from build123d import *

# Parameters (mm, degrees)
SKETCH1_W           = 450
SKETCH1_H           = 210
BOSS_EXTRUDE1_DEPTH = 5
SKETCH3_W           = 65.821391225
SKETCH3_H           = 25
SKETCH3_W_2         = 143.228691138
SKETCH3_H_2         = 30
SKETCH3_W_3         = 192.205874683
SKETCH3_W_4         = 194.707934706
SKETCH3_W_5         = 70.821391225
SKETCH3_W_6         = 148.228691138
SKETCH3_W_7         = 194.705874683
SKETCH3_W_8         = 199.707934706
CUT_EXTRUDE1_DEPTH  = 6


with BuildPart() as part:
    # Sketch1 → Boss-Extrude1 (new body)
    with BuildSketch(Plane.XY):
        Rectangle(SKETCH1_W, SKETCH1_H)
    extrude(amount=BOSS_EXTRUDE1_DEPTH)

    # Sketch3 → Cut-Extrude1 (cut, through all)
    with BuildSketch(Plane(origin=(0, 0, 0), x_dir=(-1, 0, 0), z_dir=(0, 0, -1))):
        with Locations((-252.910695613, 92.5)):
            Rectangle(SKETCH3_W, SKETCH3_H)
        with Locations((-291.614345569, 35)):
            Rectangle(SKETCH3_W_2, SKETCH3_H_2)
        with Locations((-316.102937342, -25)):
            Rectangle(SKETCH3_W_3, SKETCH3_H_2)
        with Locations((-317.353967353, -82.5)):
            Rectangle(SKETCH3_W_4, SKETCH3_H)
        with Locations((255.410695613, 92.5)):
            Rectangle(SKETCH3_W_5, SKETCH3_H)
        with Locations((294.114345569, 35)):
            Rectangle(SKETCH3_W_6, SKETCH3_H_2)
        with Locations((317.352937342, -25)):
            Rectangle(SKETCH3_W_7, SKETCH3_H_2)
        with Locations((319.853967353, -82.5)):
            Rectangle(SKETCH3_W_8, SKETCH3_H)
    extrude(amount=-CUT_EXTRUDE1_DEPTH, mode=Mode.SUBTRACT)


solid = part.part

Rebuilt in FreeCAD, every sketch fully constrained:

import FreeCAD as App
import Part
import Sketcher

V = App.Vector
Q = App.Units.Quantity


def add_polygon(sketch, points):
    """Adds a closed chain of lines whose ends are joined by coincident constraints."""
    first, n = sketch.GeometryCount, len(points)
    for a, b in zip(points, points[1:] + points[:1]):
        sketch.addGeometry(Part.LineSegment(App.Vector(*a, 0), App.Vector(*b, 0)), False)
    for i in range(n):
        sketch.addConstraint(Sketcher.Constraint("Coincident", first + i, 2, first + (i + 1) % n, 1))

doc = App.newDocument("Part")
params = doc.addObject("Spreadsheet::Sheet", "Params")
for row, (alias, value) in enumerate([
    ("sketch1_width", "450 mm"),
    ("sketch1_height", "210 mm"),
    ("pad1_length", "5 mm"),
    ("sketch2_height", "25 mm"),
    ("sketch2_height2", "30 mm"),
], start=1):
    params.set(f"A{row}", alias)
    params.set(f"B{row}", "=" + value)
    params.setAlias(f"B{row}", alias)

body = doc.addObject("PartDesign::Body", "Body")

# Sketch on XY plane
sketch1 = body.newObject("Sketcher::SketchObject", "Sketch")
sketch1.AttachmentSupport = (doc.getObject("XY_Plane"), [""])
sketch1.MapMode = "FlatFace"
add_polygon(sketch1, [(-225, 105), (-225, -105), (225, -105), (225, 105)])  # lines 0-3
sketch1.addConstraint(Sketcher.Constraint("Vertical", 0))
sketch1.addConstraint(Sketcher.Constraint("Horizontal", 1))
sketch1.addConstraint(Sketcher.Constraint("Vertical", 2))
sketch1.addConstraint(Sketcher.Constraint("Horizontal", 3))
sketch1.addConstraint(Sketcher.Constraint("Symmetric", 0, 2, 2, 2, -1, 1))
sketch1.addConstraint(Sketcher.Constraint("DistanceX", 1, 1, 1, 2, Q("450 mm")))
sketch1.addConstraint(Sketcher.Constraint("DistanceY", 0, 2, 0, 1, Q("210 mm")))
sketch1.setExpression("Constraints[9]", "Params.sketch1_width")
sketch1.setExpression("Constraints[10]", "Params.sketch1_height")
pad1 = body.newObject("PartDesign::Pad", "Pad")
pad1.Profile = sketch1
pad1.setExpression("Length", "Params.pad1_length")

# Sketch on XY plane
sketch2 = body.newObject("Sketcher::SketchObject", "Sketch001")
sketch2.AttachmentSupport = (doc.getObject("XY_Plane"), [""])
sketch2.MapMode = "FlatFace"
add_polygon(sketch2, [(286, 105), (286, 80), (220, 80), (220, 105)])  # lines 0-3
add_polygon(sketch2, [(363, 50), (363, 20), (220, 20), (220, 50)])  # lines 4-7
add_polygon(sketch2, [(412, -10), (412, -40), (220, -40), (220, -10)])  # lines 8-11
add_polygon(sketch2, [(415, -70), (415, -95), (220, -95), (220, -70)])  # lines 12-15
add_polygon(sketch2, [(-220, 105), (-220, 80), (-291, 80), (-291, 105)])  # lines 16-19
add_polygon(sketch2, [(-220, 50), (-220, 20), (-368, 20), (-368, 50)])  # lines 20-23
add_polygon(sketch2, [(-220, -10), (-220, -40), (-415, -40), (-415, -10)])  # lines 24-27
add_polygon(sketch2, [(-220, -70), (-220, -95), (-420, -95), (-420, -70)])  # lines 28-31
sketch2.addConstraint(Sketcher.Constraint("Vertical", 0))
sketch2.addConstraint(Sketcher.Constraint("Horizontal", 1))
sketch2.addConstraint(Sketcher.Constraint("Vertical", 2))
sketch2.addConstraint(Sketcher.Constraint("Horizontal", 3))
sketch2.addConstraint(Sketcher.Constraint("Vertical", 4))
sketch2.addConstraint(Sketcher.Constraint("Horizontal", 5))
sketch2.addConstraint(Sketcher.Constraint("Vertical", 6))
sketch2.addConstraint(Sketcher.Constraint("Horizontal", 7))
sketch2.addConstraint(Sketcher.Constraint("Vertical", 8))
sketch2.addConstraint(Sketcher.Constraint("Horizontal", 9))
sketch2.addConstraint(Sketcher.Constraint("Vertical", 10))
sketch2.addConstraint(Sketcher.Constraint("Horizontal", 11))
sketch2.addConstraint(Sketcher.Constraint("Vertical", 12))
sketch2.addConstraint(Sketcher.Constraint("Horizontal", 13))
sketch2.addConstraint(Sketcher.Constraint("Vertical", 14))
sketch2.addConstraint(Sketcher.Constraint("Horizontal", 15))
sketch2.addConstraint(Sketcher.Constraint("Vertical", 16))
sketch2.addConstraint(Sketcher.Constraint("Horizontal", 17))
sketch2.addConstraint(Sketcher.Constraint("Vertical", 18))
sketch2.addConstraint(Sketcher.Constraint("Horizontal", 19))
sketch2.addConstraint(Sketcher.Constraint("Vertical", 20))
sketch2.addConstraint(Sketcher.Constraint("Horizontal", 21))
sketch2.addConstraint(Sketcher.Constraint("Vertical", 22))
sketch2.addConstraint(Sketcher.Constraint("Horizontal", 23))
sketch2.addConstraint(Sketcher.Constraint("Vertical", 24))
sketch2.addConstraint(Sketcher.Constraint("Horizontal", 25))
sketch2.addConstraint(Sketcher.Constraint("Vertical", 26))
sketch2.addConstraint(Sketcher.Constraint("Horizontal", 27))
sketch2.addConstraint(Sketcher.Constraint("Vertical", 28))
sketch2.addConstraint(Sketcher.Constraint("Horizontal", 29))
sketch2.addConstraint(Sketcher.Constraint("Vertical", 30))
sketch2.addConstraint(Sketcher.Constraint("Horizontal", 31))
sketch2.addConstraint(Sketcher.Constraint("Symmetric", 1, 2, 16, 2, -2))
sketch2.addConstraint(Sketcher.Constraint("Symmetric", 5, 2, 20, 2, -2))
sketch2.addConstraint(Sketcher.Constraint("Symmetric", 9, 2, 24, 2, -2))
sketch2.addConstraint(Sketcher.Constraint("Symmetric", 13, 2, 28, 2, -2))
sketch2.addConstraint(Sketcher.Constraint("Horizontal", 3, 2, 18, 2))
sketch2.addConstraint(Sketcher.Constraint("Horizontal", 7, 2, 22, 2))
sketch2.addConstraint(Sketcher.Constraint("Horizontal", 11, 2, 26, 2))
sketch2.addConstraint(Sketcher.Constraint("Horizontal", 15, 2, 30, 2))
sketch2.addConstraint(Sketcher.Constraint("Vertical", 2, 2, 5, 2))
sketch2.addConstraint(Sketcher.Constraint("Vertical", 6, 2, 9, 2))
sketch2.addConstraint(Sketcher.Constraint("Vertical", 10, 2, 13, 2))
sketch2.addConstraint(Sketcher.Constraint("Equal", 6, 8))
sketch2.addConstraint(Sketcher.Constraint("Equal", 2, 12))
sketch2.addConstraint(Sketcher.Constraint("DistanceY", 0, 2, 0, 1, Q("25 mm")))
sketch2.addConstraint(Sketcher.Constraint("DistanceY", 4, 2, 4, 1, Q("30 mm")))
sketch2.addConstraint(Sketcher.Constraint("DistanceY", -1, 1, 0, 2, Q("80 mm")))
sketch2.addConstraint(Sketcher.Constraint("DistanceX", -1, 1, 1, 2, Q("220 mm")))
sketch2.addConstraint(Sketcher.Constraint("DistanceY", -1, 1, 4, 2, Q("20 mm")))
sketch2.addConstraint(Sketcher.Constraint("DistanceY", 8, 2, -1, 1, Q("40 mm")))
sketch2.addConstraint(Sketcher.Constraint("DistanceY", 12, 2, -1, 1, Q("95 mm")))
sketch2.addConstraint(Sketcher.Constraint("DistanceX", 1, 2, 1, 1, Q("65.821391 mm")))
sketch2.addConstraint(Sketcher.Constraint("DistanceX", 5, 2, 5, 1, Q("143.228691 mm")))
sketch2.addConstraint(Sketcher.Constraint("DistanceX", 17, 2, 17, 1, Q("70.821391 mm")))
sketch2.addConstraint(Sketcher.Constraint("DistanceX", 21, 2, 21, 1, Q("148.228691 mm")))
sketch2.addConstraint(Sketcher.Constraint("DistanceX", 9, 2, 9, 1, Q("192.205875 mm")))
sketch2.addConstraint(Sketcher.Constraint("DistanceX", 13, 2, 13, 1, Q("194.707935 mm")))
sketch2.addConstraint(Sketcher.Constraint("DistanceX", 25, 2, 25, 1, Q("194.705875 mm")))
sketch2.addConstraint(Sketcher.Constraint("DistanceX", 29, 2, 29, 1, Q("199.707935 mm")))
sketch2.setExpression("Constraints[77]", "Params.sketch2_height")
sketch2.setExpression("Constraints[78]", "Params.sketch2_height2")
pocket1 = body.newObject("PartDesign::Pocket", "Pocket")
pocket1.Profile = sketch2
pocket1.Type = "ThroughAll"
pocket1.Reversed = True

doc.recompute()
